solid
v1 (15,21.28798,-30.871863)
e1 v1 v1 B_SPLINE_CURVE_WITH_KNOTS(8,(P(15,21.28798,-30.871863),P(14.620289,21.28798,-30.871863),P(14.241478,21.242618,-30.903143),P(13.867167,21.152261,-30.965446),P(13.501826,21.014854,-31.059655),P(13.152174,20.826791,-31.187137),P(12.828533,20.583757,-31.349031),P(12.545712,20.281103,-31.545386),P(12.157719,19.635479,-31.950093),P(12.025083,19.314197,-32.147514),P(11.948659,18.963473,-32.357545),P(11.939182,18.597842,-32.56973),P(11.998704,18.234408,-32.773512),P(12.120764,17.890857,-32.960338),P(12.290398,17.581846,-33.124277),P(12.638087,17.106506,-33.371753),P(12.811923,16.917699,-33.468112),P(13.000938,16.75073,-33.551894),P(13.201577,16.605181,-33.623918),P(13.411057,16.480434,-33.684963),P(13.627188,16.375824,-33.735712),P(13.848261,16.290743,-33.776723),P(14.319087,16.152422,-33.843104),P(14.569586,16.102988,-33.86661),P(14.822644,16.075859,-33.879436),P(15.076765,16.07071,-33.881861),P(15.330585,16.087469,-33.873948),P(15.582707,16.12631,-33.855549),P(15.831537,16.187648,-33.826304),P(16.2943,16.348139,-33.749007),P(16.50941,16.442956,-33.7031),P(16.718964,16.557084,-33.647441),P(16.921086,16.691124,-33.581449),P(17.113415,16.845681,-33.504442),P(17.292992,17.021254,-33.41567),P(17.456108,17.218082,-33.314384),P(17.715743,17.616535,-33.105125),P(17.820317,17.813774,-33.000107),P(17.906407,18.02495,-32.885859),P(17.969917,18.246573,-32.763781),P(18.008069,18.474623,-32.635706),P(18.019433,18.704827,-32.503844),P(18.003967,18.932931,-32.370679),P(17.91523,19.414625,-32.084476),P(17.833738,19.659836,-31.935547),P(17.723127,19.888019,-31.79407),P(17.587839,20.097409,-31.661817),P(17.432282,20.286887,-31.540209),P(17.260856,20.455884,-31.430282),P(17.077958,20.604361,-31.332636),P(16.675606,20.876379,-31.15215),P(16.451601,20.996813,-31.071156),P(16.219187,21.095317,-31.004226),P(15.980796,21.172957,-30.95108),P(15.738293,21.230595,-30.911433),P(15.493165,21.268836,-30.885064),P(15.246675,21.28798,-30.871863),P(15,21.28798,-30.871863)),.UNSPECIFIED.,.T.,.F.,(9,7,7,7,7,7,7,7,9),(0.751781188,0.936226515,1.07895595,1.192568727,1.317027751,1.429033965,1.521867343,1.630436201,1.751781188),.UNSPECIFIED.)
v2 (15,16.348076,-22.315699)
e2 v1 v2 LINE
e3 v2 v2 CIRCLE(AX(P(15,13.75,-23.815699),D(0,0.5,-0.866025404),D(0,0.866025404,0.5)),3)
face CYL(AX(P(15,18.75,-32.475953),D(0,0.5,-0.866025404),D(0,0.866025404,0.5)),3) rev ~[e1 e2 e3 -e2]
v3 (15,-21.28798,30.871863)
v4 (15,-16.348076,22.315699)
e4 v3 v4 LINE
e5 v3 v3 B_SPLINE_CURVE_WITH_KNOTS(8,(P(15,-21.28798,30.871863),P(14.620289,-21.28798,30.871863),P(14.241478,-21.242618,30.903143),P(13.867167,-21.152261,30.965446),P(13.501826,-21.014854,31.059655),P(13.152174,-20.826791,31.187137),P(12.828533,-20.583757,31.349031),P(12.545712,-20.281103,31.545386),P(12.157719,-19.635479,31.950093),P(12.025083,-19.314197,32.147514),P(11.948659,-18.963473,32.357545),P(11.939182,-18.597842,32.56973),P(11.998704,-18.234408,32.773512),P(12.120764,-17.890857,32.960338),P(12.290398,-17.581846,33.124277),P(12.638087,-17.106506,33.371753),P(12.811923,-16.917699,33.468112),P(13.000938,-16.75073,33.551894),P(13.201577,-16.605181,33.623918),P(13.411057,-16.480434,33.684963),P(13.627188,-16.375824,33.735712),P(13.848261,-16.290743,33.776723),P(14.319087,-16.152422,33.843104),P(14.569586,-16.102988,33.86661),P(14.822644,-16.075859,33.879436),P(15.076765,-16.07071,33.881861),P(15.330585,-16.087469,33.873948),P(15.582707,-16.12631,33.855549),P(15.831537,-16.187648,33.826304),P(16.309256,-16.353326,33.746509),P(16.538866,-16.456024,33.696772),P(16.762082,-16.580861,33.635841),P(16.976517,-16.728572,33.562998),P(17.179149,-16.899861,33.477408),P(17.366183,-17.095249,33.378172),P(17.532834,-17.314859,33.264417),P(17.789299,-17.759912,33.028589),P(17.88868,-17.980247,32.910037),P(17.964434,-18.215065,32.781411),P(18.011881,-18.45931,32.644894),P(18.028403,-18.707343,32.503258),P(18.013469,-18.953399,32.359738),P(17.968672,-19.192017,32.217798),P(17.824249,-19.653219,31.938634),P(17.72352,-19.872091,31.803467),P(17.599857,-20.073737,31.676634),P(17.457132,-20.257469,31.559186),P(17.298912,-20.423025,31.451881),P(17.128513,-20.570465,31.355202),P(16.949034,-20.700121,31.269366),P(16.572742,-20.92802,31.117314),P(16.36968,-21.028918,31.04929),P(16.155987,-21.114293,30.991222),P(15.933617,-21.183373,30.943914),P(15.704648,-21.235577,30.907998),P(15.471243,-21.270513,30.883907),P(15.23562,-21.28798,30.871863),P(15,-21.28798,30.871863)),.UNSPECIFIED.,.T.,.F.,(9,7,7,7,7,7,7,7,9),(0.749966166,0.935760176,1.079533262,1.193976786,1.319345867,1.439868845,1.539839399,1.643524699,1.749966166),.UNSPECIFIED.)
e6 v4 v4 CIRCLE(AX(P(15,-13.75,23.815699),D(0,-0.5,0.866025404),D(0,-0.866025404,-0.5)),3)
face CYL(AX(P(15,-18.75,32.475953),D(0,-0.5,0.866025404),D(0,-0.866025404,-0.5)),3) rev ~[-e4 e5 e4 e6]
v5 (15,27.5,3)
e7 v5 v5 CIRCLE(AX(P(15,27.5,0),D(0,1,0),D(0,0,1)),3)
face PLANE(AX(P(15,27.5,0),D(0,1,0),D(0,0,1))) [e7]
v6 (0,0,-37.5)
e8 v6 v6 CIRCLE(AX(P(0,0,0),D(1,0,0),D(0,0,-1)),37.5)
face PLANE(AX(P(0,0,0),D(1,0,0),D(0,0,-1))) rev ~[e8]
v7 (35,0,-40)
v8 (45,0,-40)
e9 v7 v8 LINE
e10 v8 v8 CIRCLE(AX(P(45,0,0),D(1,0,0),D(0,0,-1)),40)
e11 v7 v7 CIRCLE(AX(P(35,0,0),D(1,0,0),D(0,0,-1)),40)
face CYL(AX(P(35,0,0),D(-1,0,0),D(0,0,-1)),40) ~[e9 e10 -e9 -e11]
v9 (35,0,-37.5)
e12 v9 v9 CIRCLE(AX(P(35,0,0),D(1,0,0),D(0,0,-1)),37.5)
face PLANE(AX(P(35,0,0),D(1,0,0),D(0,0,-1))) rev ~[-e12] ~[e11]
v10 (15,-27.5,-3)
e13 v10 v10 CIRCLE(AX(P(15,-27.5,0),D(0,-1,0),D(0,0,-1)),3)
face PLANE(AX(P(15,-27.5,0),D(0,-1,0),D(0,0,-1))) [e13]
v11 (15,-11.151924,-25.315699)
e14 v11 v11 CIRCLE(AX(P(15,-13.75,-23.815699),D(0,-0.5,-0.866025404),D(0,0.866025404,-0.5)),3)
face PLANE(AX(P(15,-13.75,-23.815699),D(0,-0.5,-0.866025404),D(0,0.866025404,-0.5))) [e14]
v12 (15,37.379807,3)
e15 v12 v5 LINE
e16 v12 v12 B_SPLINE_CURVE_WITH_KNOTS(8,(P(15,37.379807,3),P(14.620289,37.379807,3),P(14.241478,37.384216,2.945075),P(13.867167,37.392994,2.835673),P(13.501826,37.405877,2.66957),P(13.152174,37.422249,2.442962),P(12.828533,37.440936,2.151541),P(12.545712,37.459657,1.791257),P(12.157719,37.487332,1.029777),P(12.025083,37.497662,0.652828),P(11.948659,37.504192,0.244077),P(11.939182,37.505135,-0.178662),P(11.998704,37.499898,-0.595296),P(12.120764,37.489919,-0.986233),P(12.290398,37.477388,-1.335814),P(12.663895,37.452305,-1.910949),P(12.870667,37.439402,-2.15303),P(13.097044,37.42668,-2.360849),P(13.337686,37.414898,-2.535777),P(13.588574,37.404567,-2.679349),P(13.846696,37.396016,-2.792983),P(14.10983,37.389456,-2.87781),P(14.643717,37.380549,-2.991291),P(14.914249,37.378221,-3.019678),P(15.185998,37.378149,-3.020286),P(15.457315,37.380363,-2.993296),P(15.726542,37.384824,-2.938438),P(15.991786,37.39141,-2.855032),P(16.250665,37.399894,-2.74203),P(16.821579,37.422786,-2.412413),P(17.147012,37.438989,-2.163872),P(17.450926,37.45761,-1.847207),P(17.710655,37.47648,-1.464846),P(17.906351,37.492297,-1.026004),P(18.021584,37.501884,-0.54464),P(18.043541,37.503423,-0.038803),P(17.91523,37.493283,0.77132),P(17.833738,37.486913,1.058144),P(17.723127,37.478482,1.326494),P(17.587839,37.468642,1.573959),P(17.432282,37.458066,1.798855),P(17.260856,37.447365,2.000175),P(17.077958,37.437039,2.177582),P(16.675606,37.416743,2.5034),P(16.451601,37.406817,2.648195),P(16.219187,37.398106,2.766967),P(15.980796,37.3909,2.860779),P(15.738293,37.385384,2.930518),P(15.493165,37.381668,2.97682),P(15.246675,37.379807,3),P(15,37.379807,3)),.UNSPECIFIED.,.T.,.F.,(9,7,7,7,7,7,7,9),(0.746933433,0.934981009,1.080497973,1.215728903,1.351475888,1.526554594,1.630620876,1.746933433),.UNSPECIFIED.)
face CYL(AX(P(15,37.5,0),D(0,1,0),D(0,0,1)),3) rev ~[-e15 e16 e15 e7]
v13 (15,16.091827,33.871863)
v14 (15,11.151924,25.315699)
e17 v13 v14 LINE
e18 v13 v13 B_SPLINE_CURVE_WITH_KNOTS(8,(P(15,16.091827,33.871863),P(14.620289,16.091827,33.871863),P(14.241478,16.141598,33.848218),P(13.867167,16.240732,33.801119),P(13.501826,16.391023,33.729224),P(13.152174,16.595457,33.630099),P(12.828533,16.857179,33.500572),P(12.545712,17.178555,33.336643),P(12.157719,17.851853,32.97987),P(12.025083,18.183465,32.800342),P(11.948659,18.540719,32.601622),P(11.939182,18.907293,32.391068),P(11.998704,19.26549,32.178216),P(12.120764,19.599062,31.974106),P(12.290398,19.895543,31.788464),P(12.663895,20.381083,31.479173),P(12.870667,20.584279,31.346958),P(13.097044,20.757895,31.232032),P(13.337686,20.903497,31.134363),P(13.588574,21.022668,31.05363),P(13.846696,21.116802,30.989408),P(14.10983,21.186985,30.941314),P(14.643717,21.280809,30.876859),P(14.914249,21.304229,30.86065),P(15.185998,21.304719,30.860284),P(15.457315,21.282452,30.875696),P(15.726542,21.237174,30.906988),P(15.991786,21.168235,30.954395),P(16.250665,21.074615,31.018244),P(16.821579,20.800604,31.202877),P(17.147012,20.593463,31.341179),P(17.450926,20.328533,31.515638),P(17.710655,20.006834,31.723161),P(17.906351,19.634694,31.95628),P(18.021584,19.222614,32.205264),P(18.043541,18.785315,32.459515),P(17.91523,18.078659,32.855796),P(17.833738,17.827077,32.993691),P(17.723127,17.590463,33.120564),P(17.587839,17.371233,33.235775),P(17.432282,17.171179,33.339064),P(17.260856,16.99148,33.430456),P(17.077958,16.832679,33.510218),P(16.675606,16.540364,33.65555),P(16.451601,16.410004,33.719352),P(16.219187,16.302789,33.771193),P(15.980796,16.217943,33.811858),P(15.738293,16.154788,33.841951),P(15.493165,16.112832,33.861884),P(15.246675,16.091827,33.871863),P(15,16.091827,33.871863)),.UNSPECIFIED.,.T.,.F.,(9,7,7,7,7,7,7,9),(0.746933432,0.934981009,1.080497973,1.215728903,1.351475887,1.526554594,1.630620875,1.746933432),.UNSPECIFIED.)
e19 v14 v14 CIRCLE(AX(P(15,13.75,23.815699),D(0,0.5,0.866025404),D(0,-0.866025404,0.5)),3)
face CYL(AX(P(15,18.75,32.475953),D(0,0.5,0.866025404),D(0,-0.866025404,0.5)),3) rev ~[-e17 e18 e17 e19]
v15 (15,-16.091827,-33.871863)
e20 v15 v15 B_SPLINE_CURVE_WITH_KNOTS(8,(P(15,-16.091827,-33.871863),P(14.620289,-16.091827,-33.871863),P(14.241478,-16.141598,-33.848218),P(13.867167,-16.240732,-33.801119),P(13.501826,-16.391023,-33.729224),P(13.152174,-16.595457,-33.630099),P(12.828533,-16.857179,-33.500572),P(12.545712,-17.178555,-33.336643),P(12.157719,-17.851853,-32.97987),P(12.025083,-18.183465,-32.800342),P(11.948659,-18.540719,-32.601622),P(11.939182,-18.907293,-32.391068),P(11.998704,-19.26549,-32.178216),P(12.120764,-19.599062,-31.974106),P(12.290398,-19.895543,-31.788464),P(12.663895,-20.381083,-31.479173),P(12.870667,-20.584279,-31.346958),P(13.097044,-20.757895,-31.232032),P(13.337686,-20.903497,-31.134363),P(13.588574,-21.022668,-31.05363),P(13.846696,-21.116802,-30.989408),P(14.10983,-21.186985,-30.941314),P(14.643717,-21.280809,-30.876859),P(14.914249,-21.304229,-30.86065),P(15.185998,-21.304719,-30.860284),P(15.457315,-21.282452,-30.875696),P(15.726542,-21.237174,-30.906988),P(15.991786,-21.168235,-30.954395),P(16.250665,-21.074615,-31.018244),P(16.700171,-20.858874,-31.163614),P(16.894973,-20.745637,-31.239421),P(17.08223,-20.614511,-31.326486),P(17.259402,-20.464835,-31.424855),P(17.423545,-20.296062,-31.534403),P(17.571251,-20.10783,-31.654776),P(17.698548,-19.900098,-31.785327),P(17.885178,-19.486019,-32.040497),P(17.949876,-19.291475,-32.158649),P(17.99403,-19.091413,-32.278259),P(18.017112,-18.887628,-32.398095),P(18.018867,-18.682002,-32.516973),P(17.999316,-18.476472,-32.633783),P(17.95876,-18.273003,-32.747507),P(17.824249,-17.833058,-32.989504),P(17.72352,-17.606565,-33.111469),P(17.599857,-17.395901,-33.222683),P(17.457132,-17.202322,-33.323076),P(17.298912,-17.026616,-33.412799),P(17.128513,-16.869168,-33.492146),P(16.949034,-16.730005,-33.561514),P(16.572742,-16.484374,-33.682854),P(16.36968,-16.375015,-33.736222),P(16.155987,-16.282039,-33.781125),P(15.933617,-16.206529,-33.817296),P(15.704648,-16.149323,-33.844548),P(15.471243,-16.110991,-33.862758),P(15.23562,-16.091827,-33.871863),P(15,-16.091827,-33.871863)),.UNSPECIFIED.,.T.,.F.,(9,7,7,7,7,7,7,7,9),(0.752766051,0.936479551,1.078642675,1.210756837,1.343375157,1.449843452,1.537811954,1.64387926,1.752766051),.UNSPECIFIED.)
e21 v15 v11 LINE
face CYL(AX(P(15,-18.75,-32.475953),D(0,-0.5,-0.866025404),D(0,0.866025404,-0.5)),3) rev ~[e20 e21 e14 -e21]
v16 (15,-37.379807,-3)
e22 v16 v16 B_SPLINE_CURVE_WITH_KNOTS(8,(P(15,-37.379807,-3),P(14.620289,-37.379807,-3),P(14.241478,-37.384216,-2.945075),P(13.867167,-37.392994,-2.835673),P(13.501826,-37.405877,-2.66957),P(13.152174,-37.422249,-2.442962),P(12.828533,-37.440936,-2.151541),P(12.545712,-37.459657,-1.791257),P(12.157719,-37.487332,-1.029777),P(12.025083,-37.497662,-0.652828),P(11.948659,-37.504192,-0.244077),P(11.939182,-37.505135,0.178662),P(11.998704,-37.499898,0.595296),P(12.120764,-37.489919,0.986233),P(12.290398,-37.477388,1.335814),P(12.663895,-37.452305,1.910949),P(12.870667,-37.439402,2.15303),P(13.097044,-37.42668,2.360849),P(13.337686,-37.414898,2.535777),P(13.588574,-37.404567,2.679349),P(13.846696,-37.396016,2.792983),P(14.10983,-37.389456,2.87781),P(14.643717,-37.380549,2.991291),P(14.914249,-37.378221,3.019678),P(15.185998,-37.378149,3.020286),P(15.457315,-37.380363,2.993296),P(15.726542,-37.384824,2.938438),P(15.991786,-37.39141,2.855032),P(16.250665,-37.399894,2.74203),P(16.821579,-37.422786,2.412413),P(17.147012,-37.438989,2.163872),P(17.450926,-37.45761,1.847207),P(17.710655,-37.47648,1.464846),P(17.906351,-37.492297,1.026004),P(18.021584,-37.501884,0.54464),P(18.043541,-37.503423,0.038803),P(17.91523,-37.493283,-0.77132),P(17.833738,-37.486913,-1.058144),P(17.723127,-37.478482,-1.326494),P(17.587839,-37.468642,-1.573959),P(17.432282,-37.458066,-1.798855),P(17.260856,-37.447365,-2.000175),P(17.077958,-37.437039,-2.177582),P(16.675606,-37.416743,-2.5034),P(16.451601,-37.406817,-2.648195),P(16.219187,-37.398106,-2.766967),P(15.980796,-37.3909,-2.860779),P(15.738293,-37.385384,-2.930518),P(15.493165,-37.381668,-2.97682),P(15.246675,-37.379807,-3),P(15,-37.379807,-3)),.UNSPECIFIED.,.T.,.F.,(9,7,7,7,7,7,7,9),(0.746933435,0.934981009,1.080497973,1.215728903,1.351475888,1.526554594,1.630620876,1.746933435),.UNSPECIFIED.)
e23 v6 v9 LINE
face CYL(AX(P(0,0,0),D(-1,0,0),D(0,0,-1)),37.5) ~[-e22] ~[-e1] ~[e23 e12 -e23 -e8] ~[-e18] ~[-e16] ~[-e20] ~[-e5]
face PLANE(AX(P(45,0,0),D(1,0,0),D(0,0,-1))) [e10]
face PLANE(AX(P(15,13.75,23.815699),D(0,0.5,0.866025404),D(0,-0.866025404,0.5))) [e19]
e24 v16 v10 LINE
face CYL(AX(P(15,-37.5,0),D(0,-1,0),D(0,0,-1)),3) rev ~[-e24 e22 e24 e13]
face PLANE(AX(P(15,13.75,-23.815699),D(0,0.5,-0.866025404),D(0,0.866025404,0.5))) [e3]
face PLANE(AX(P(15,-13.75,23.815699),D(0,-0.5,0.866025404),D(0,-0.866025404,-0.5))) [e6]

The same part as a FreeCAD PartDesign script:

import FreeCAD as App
import Part
import Sketcher
from FreeCAD import Vector
Q = App.Units.Quantity

doc = App.newDocument("Part")
params = doc.addObject("Spreadsheet::Sheet", "Params")
for row, (alias, value) in enumerate([
    ("sketch1_diameter", "75 mm"),
    ("pad1_length", "35 mm"),
    ("sketch2_diameter", "80 mm"),
    ("pad2_length", "10 mm"),
    ("sketch3_diameter", "6 mm"),
    ("pocket1_length", "10 mm"),
], start=1):
    params.set(f"A{row}", alias)
    params.set(f"B{row}", "=" + value)
    params.setAlias(f"B{row}", alias)

body = doc.addObject("PartDesign::Body", "Body")

sketch1 = body.newObject("Sketcher::SketchObject", "Sketch")
sketch1.AttachmentSupport = (doc.getObject("YZ_Plane"), [""])
sketch1.MapMode = "FlatFace"
sketch1.addGeometry(Part.Circle(Vector(0, 0, 0), Vector(0, 0, 1), 38), False)
sketch1.addConstraint(Sketcher.Constraint("Coincident", 0, 3, -1, 1))
sketch1.addConstraint(Sketcher.Constraint("Diameter", 0, Q("75 mm")))
sketch1.setExpression("Constraints[1]", "Params.sketch1_diameter")
pad1 = body.newObject("PartDesign::Pad", "Pad")
pad1.Profile = sketch1
pad1.setExpression("Length", "Params.pad1_length")

sketch2 = body.newObject("Sketcher::SketchObject", "Sketch001")
sketch2.AttachmentSupport = (doc.getObject("YZ_Plane"), [""])
sketch2.MapMode = "FlatFace"
sketch2.AttachmentOffset = App.Placement(Vector(0, 0, 35), App.Rotation())
sketch2.addGeometry(Part.Circle(Vector(0, 0, 0), Vector(0, 0, 1), 40), False)
sketch2.addConstraint(Sketcher.Constraint("Coincident", 0, 3, -1, 1))
sketch2.addConstraint(Sketcher.Constraint("Diameter", 0, Q("80 mm")))
sketch2.setExpression("Constraints[1]", "Params.sketch2_diameter")
pad2 = body.newObject("PartDesign::Pad", "Pad001")
pad2.Profile = sketch2
pad2.setExpression("Length", "Params.pad2_length")

sketch3 = body.newObject("Sketcher::SketchObject", "Sketch002")
sketch3.AttachmentSupport = (doc.getObject("XZ_Plane"), [""])
sketch3.MapMode = "FlatFace"
sketch3.AttachmentOffset = App.Placement(Vector(0, 0, -37.5), App.Rotation())
sketch3.addGeometry(Part.Circle(Vector(15, 0, 0), Vector(0, 0, 1), 3), False)
sketch3.addConstraint(Sketcher.Constraint("PointOnObject", 0, 3, -1))
sketch3.addConstraint(Sketcher.Constraint("Diameter", 0, Q("6 mm")))
sketch3.addConstraint(Sketcher.Constraint("DistanceX", -1, 1, 0, 3, Q("15 mm")))
sketch3.setExpression("Constraints[1]", "Params.sketch3_diameter")
pocket1 = body.newObject("PartDesign::Pocket", "Pocket")
pocket1.Profile = sketch3
pocket1.setExpression("Length", "Params.pocket1_length")
pocket1.Reversed = True
doc.recompute()

polarpattern = body.newObject("PartDesign::PolarPattern", "PolarPattern")
polarpattern.Originals = [pocket1]
polarpattern.Axis = (doc.getObject("X_Axis"), [""])
polarpattern.Angle = 360
polarpattern.Occurrences = 6
body.Tip = polarpattern

doc.recompute()
